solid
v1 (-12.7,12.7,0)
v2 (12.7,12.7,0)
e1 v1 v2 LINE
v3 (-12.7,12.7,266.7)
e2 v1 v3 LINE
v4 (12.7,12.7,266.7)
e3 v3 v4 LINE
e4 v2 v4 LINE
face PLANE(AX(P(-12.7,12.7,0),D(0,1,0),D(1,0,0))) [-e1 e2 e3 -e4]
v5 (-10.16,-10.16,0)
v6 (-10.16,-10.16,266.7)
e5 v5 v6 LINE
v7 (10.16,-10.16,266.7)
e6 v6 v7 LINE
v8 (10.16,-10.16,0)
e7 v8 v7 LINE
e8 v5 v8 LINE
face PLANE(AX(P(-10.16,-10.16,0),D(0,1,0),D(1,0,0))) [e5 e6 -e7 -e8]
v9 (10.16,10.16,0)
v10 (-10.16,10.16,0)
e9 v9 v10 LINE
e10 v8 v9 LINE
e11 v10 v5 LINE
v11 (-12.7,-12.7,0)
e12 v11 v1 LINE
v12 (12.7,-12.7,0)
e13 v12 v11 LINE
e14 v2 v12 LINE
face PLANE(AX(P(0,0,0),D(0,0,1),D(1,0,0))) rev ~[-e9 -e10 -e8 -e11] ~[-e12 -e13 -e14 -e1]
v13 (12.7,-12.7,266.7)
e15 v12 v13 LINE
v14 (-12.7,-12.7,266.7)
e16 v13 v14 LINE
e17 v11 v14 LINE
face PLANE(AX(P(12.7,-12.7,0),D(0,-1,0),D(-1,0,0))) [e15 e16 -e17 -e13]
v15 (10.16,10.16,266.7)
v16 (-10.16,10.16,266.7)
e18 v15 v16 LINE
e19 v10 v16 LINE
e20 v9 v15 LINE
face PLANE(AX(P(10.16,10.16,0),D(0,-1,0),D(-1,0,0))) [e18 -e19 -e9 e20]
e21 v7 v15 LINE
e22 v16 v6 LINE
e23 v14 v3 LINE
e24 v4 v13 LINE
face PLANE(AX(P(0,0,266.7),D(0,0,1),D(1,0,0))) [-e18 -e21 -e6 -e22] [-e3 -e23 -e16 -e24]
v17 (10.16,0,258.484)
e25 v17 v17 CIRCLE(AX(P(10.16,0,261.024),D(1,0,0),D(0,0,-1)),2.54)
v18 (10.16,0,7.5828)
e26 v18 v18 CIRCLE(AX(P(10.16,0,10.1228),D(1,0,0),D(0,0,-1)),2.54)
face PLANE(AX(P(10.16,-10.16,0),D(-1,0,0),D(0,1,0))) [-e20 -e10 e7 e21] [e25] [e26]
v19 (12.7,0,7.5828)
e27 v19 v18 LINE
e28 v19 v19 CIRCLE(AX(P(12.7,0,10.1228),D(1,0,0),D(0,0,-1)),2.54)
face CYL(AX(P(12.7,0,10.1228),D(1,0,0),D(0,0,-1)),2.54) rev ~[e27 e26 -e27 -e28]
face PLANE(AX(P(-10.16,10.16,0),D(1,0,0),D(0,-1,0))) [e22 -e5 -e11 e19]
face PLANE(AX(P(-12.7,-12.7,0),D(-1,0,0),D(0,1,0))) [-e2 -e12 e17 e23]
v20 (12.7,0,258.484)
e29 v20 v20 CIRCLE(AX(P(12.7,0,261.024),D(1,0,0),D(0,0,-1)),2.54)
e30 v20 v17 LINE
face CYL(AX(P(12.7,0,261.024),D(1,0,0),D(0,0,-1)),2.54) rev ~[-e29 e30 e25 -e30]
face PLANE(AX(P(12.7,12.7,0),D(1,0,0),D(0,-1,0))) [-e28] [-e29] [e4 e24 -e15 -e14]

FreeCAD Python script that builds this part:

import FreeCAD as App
import Part
import Sketcher
Q = App.Units.Quantity


def add_polygon(sketch, points):
    """Adds a closed chain of lines whose ends are joined by coincident constraints."""
    first, n = sketch.GeometryCount, len(points)
    for a, b in zip(points, points[1:] + points[:1]):
        sketch.addGeometry(Part.LineSegment(App.Vector(*a, 0), App.Vector(*b, 0)), False)
    for i in range(n):
        sketch.addConstraint(Sketcher.Constraint("Coincident", first + i, 2, first + (i + 1) % n, 1))

doc = App.newDocument("Part")
params = doc.addObject("Spreadsheet::Sheet", "Params")
for row, (alias, value) in enumerate([
    ("sketch1_width", "1 in"),
    ("pad1_length", "10.5 in"),
    ("sketch2_diameter", "0.2 in"),
    ("pocket1_length", "0.1 in"),
], start=1):
    params.set(f"A{row}", alias)
    params.set(f"B{row}", "=" + value)
    params.setAlias(f"B{row}", alias)

body = doc.addObject("PartDesign::Body", "Body")

# Sketch on XY plane
sketch1 = doc.addObject("Sketcher::SketchObject", "Sketch")
body.addObject(sketch1)
sketch1.AttachmentSupport = (doc.XY_Plane, [""])
sketch1.MapMode = "FlatFace"
add_polygon(sketch1, [(-13, -13), (13, -13), (13, 13), (-13, 13)])  # lines 0-3
add_polygon(sketch1, [(-10, 10), (10, 10), (10, -10), (-10, -10)])  # lines 4-7
sketch1.addConstraint([
    Sketcher.Constraint("Horizontal", 0),
    Sketcher.Constraint("Vertical", 1),
    Sketcher.Constraint("Horizontal", 2),
    Sketcher.Constraint("Vertical", 3),
    Sketcher.Constraint("Horizontal", 4),
    Sketcher.Constraint("Vertical", 5),
    Sketcher.Constraint("Horizontal", 6),
    Sketcher.Constraint("Vertical", 7),
    Sketcher.Constraint("Symmetric", 0, 2, 2, 2, -1, 1),
    Sketcher.Constraint("Symmetric", 4, 2, 6, 2, -1, 1),
    Sketcher.Constraint("Equal", 2, 1),
    Sketcher.Constraint("Equal", 6, 5),
    Sketcher.Constraint("DistanceX", 0, 1, 0, 2, Q("1 in")),
    Sketcher.Constraint("DistanceX", 4, 2, 1, 2, Q("0.1 in")),
])
sketch1.setExpression("Constraints[20]", "Params.sketch1_width")
pad1 = doc.addObject("PartDesign::Pad", "Pad")
body.addObject(pad1)
pad1.Profile = sketch1
pad1.setExpression("Length", "Params.pad1_length")

# Sketch on YZ plane
sketch2 = doc.addObject("Sketcher::SketchObject", "Sketch001")
body.addObject(sketch2)
sketch2.AttachmentSupport = (doc.YZ_Plane, [""])
sketch2.MapMode = "FlatFace"
sketch2.AttachmentOffset = App.Placement(App.Vector(0, 0, 0.5 * 25.4), App.Rotation())
sketch2.addGeometry([
    Part.Circle(App.Vector(0, 10.1, 0), App.Vector(0, 0, 1), 2.5),
    Part.Circle(App.Vector(0, 261, 0), App.Vector(0, 0, 1), 2.5),
], False)
sketch2.addConstraint([
    Sketcher.Constraint("Equal", 0, 1),
    Sketcher.Constraint("PointOnObject", 0, 3, -2),
    Sketcher.Constraint("PointOnObject", 1, 3, -2),
    Sketcher.Constraint("Diameter", 0, Q("0.2 in")),
    Sketcher.Constraint("DistanceY", 0, 3, 1, 3, Q("9.878 in")),
    Sketcher.Constraint("DistanceY", -1, 1, 0, 3, 10.1228),
])
sketch2.setExpression("Constraints[3]", "Params.sketch2_diameter")
pocket1 = doc.addObject("PartDesign::Pocket", "Pocket")
body.addObject(pocket1)
pocket1.Profile = sketch2
pocket1.setExpression("Length", "Params.pocket1_length")

doc.recompute()
